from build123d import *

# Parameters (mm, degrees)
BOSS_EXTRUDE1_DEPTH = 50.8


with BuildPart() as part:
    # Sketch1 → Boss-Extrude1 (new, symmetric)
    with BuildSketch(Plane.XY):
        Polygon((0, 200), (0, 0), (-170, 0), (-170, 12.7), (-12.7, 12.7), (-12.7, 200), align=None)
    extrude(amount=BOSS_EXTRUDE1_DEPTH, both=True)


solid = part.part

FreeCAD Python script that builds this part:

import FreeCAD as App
import Part
import Sketcher
Q = App.Units.Quantity

doc = App.newDocument("Part")
body = doc.addObject("PartDesign::Body", "Body")

sketch1 = body.newObject("Sketcher::SketchObject", "Sketch")
sketch1.AttachmentSupport = (doc.getObject("XY_Plane"), [""])
sketch1.MapMode = "FlatFace"
sketch1.addGeometry([
    Part.LineSegment(App.Vector(0, 0, 0), App.Vector(0, 200, 0)),
    Part.LineSegment(App.Vector(0, 200, 0), App.Vector(-13, 200, 0)),
    Part.LineSegment(App.Vector(-13, 200, 0), App.Vector(-13, 13, 0)),
    Part.LineSegment(App.Vector(-13, 13, 0), App.Vector(-170, 13, 0)),
    Part.LineSegment(App.Vector(-170, 13, 0), App.Vector(-170, 0, 0)),
    Part.LineSegment(App.Vector(-170, 0, 0), App.Vector(0, 0, 0)),
], False)
sketch1.addConstraint([
    Sketcher.Constraint("Coincident", 0, 2, 1, 1),
    Sketcher.Constraint("Coincident", 1, 2, 2, 1),
    Sketcher.Constraint("Coincident", 2, 2, 3, 1),
    Sketcher.Constraint("Coincident", 3, 2, 4, 1),
    Sketcher.Constraint("Coincident", 4, 2, 5, 1),
    Sketcher.Constraint("Coincident", 5, 2, 0, 1),
    Sketcher.Constraint("Vertical", 0),
    Sketcher.Constraint("Horizontal", 1),
    Sketcher.Constraint("Vertical", 2),
    Sketcher.Constraint("Horizontal", 3),
    Sketcher.Constraint("Vertical", 4),
    Sketcher.Constraint("Horizontal", 5),
    Sketcher.Constraint("Coincident", 5, 2, -1, 1),
    Sketcher.Constraint("Equal", 1, 4),
    Sketcher.Constraint("DistanceX", 5, 1, 5, 2, Q("170 mm")),
    Sketcher.Constraint("DistanceY", 0, 1, 0, 2, Q("200 mm")),
    Sketcher.Constraint("DistanceX", 1, 2, 1, 1, Q("12.7 mm")),
])
pad1 = body.newObject("PartDesign::Pad", "Pad")
pad1.Profile = sketch1
pad1.Length = 101.6
pad1.Midplane = True

doc.recompute()
